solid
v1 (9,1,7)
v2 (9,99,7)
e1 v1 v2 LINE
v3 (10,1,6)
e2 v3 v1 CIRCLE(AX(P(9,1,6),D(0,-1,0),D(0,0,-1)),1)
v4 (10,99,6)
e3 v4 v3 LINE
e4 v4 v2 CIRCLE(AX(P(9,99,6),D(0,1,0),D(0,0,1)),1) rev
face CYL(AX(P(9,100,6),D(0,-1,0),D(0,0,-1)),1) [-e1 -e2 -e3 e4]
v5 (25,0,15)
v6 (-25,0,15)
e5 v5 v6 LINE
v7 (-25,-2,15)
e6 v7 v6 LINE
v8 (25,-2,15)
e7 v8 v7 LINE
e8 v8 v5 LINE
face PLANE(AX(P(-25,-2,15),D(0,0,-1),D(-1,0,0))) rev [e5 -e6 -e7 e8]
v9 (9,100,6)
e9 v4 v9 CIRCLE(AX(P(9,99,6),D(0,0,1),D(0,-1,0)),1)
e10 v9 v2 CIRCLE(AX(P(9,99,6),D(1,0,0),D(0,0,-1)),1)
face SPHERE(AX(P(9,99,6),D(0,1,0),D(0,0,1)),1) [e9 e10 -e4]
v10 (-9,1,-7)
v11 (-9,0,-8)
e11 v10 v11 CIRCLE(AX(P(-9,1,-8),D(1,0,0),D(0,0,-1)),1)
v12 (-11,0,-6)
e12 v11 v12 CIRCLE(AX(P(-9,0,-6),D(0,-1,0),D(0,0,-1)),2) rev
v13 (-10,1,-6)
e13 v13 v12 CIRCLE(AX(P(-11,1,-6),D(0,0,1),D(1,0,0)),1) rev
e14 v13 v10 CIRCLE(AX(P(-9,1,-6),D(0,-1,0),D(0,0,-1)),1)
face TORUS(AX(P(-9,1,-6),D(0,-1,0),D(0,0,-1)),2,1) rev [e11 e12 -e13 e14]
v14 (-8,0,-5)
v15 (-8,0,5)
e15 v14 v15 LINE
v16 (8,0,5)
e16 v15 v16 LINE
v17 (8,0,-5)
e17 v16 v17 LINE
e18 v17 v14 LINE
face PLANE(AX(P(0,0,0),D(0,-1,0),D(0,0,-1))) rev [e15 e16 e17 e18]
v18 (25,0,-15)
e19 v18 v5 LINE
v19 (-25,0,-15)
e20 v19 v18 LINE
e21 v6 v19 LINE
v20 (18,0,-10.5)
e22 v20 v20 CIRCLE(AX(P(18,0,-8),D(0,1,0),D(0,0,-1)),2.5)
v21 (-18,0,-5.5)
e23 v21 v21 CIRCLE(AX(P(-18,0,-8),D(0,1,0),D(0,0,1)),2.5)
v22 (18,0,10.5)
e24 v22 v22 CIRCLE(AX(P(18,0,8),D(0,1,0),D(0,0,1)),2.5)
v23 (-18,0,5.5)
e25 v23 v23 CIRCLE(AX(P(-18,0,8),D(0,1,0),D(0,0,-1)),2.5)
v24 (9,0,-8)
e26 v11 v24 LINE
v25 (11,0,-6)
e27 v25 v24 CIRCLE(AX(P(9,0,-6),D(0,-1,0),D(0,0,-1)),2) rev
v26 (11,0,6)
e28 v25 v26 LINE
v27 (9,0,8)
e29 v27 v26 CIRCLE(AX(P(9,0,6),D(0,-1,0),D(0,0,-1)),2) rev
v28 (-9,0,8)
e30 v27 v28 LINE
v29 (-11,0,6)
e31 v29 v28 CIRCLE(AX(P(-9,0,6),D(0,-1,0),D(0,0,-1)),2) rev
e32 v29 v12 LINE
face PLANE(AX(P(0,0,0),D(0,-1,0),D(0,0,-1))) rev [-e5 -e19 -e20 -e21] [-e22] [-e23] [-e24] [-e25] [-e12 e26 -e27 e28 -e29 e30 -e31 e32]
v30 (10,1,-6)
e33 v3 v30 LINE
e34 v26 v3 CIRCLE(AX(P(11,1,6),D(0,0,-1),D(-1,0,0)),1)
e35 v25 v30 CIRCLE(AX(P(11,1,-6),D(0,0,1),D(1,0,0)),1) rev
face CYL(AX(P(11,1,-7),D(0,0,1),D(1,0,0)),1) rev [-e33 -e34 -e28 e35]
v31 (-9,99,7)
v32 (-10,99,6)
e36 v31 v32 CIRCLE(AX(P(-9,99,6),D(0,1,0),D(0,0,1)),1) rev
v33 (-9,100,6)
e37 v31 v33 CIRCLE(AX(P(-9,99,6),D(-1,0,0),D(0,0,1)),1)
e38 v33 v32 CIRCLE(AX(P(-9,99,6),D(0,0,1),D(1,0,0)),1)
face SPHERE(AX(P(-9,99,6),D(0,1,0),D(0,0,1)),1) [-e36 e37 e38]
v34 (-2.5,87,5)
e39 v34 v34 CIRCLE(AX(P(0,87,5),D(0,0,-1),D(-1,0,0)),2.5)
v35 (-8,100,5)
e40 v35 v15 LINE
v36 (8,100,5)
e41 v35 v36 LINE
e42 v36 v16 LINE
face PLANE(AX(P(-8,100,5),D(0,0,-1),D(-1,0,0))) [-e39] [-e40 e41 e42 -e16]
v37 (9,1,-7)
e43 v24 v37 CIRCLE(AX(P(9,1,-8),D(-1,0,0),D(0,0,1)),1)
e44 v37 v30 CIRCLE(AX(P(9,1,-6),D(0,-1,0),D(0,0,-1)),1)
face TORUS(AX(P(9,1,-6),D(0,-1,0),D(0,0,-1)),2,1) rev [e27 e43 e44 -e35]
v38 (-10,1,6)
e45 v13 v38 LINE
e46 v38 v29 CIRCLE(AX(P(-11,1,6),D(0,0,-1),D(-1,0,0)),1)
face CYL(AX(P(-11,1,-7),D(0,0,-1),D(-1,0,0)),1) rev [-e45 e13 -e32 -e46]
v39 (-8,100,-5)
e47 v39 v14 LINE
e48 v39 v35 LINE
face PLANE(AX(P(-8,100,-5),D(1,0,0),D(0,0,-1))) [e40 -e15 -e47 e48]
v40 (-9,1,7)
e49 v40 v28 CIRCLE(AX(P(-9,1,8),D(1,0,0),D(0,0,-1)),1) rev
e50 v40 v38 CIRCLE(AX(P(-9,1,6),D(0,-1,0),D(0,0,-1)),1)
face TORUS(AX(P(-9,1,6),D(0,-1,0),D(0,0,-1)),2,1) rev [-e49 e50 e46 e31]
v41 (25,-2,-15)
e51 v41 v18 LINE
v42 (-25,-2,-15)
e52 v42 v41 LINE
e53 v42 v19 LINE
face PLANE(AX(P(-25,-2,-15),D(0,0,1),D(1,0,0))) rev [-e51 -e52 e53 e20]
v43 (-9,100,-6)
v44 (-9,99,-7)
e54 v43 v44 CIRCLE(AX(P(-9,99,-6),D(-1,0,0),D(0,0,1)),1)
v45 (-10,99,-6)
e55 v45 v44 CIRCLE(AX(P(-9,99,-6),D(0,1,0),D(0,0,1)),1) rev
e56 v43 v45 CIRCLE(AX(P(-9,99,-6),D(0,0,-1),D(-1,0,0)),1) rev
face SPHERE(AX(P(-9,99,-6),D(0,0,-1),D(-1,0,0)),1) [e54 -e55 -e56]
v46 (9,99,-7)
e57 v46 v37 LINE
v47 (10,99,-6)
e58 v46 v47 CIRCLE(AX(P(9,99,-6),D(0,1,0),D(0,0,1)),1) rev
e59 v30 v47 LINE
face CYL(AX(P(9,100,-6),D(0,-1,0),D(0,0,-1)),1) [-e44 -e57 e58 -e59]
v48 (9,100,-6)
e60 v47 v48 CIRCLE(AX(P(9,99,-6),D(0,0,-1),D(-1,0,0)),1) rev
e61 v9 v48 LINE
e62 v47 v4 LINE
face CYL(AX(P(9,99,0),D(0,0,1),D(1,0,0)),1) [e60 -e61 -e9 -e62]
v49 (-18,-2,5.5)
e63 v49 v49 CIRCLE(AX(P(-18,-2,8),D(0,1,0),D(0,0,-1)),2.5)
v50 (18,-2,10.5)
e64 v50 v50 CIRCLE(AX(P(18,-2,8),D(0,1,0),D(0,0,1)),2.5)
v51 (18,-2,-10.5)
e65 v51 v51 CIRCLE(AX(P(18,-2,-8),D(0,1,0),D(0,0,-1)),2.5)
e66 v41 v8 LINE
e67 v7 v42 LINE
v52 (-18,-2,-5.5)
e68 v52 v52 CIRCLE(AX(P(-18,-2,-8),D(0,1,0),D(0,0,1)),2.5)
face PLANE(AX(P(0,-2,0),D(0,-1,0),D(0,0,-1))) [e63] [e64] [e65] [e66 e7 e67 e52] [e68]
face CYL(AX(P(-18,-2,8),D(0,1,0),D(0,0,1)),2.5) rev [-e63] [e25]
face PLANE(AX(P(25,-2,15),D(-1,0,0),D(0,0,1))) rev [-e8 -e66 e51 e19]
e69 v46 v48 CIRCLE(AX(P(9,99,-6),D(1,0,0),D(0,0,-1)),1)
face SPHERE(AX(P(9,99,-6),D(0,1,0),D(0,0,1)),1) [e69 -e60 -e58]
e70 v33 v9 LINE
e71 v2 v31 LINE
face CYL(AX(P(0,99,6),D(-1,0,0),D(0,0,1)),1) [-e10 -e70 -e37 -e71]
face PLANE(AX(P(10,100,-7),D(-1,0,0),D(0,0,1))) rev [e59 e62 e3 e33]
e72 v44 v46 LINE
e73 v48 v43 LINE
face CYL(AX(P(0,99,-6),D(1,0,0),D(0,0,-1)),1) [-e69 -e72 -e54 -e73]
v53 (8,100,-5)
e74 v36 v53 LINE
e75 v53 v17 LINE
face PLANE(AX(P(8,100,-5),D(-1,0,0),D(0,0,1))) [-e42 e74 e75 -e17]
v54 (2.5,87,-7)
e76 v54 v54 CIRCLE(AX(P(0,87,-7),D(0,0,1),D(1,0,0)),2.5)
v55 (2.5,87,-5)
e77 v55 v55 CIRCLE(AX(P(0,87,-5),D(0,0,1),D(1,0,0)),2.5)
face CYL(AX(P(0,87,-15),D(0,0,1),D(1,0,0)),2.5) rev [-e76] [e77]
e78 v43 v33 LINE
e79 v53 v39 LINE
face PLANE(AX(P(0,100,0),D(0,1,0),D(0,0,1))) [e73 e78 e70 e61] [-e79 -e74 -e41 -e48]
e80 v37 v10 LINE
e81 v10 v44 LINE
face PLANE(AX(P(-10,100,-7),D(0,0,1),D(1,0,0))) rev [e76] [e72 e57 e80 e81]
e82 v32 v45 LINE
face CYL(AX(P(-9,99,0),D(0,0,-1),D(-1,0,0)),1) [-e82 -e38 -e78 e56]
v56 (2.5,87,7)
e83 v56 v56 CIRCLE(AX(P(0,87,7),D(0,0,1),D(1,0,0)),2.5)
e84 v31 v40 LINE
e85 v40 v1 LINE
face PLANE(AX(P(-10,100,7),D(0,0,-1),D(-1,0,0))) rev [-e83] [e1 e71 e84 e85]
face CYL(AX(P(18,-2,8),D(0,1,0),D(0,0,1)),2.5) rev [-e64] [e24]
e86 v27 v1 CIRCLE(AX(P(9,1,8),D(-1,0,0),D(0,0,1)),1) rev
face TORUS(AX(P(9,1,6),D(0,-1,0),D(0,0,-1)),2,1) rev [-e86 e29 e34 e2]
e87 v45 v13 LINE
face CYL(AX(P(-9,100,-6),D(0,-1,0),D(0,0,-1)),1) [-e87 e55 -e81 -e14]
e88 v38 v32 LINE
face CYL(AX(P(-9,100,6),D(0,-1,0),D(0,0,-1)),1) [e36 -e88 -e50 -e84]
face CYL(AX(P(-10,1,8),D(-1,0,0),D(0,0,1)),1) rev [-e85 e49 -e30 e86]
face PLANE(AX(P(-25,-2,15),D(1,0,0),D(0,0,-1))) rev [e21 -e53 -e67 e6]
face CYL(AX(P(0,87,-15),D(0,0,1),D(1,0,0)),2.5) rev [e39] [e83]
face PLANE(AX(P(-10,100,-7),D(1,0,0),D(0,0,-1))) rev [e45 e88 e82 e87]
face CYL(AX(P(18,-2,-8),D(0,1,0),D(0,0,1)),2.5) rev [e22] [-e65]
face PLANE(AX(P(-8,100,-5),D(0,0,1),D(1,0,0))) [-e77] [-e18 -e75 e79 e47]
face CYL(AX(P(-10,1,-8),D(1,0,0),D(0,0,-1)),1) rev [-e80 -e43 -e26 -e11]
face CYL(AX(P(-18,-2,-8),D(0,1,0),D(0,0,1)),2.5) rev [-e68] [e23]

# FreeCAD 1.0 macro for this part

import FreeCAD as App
import Part
import Sketcher
from FreeCAD import Vector
Q = App.Units.Quantity


def edges_at(feature, points):
    """Names of the edges that pass closest to the given points."""
    edges = feature.Shape.Edges
    near = lambda p: min(range(len(edges)), key=lambda i: edges[i].distToShape(Part.Vertex(*p))[0])
    return sorted({f"Edge{near(p) + 1}" for p in points})

doc = App.newDocument("Part")
body = doc.addObject("PartDesign::Body", "Body")

# Sketch on XZ plane
sketch1 = body.newObject("Sketcher::SketchObject", "Sketch")
sketch1.AttachmentSupport = (doc.getObject("XZ_Plane"), [""])
sketch1.MapMode = "FlatFace"
sketch1.addGeometry(Part.LineSegment(Vector(-10, -7, 0), Vector(-10, 7, 0)), False)
sketch1.addGeometry(Part.LineSegment(Vector(-10, 7, 0), Vector(10, 7, 0)), False)
sketch1.addGeometry(Part.LineSegment(Vector(10, 7, 0), Vector(10, -7, 0)), False)
sketch1.addGeometry(Part.LineSegment(Vector(10, -7, 0), Vector(-10, -7, 0)), False)
sketch1.addGeometry(Part.LineSegment(Vector(8, 5, 0), Vector(-8, 5, 0)), False)
sketch1.addGeometry(Part.LineSegment(Vector(-8, 5, 0), Vector(-8, -5, 0)), False)
sketch1.addGeometry(Part.LineSegment(Vector(-8, -5, 0), Vector(8, -5, 0)), False)
sketch1.addGeometry(Part.LineSegment(Vector(8, -5, 0), Vector(8, 5, 0)), False)
sketch1.addConstraint(Sketcher.Constraint("Coincident", 0, 2, 1, 1))
sketch1.addConstraint(Sketcher.Constraint("Coincident", 1, 2, 2, 1))
sketch1.addConstraint(Sketcher.Constraint("Coincident", 2, 2, 3, 1))
sketch1.addConstraint(Sketcher.Constraint("Coincident", 3, 2, 0, 1))
sketch1.addConstraint(Sketcher.Constraint("Coincident", 4, 2, 5, 1))
sketch1.addConstraint(Sketcher.Constraint("Coincident", 5, 2, 6, 1))
sketch1.addConstraint(Sketcher.Constraint("Coincident", 6, 2, 7, 1))
sketch1.addConstraint(Sketcher.Constraint("Coincident", 7, 2, 4, 1))
sketch1.addConstraint(Sketcher.Constraint("Vertical", 0))
sketch1.addConstraint(Sketcher.Constraint("Horizontal", 1))
sketch1.addConstraint(Sketcher.Constraint("Vertical", 2))
sketch1.addConstraint(Sketcher.Constraint("Horizontal", 3))
sketch1.addConstraint(Sketcher.Constraint("Horizontal", 4))
sketch1.addConstraint(Sketcher.Constraint("Vertical", 5))
sketch1.addConstraint(Sketcher.Constraint("Horizontal", 6))
sketch1.addConstraint(Sketcher.Constraint("Vertical", 7))
sketch1.addConstraint(Sketcher.Constraint("Symmetric", 0, 2, 2, 2, -1, 1))
sketch1.addConstraint(Sketcher.Constraint("Symmetric", 4, 2, 6, 2, -1, 1))
sketch1.addConstraint(Sketcher.Constraint("DistanceX", 1, 1, 1, 2, Q("20 mm")))
sketch1.addConstraint(Sketcher.Constraint("DistanceX", 4, 2, 4, 1, Q("16 mm")))
sketch1.addConstraint(Sketcher.Constraint("DistanceY", 0, 1, 0, 2, Q("14 mm")))
sketch1.addConstraint(Sketcher.Constraint("DistanceY", 5, 2, 5, 1, Q("10 mm")))
pad1 = body.newObject("PartDesign::Pad", "Pad")
pad1.Profile = sketch1
pad1.Length = 100
pad1.Reversed = True

# Sketch on XZ plane
sketch2 = body.newObject("Sketcher::SketchObject", "Sketch001")
sketch2.AttachmentSupport = (doc.getObject("XZ_Plane"), [""])
sketch2.MapMode = "FlatFace"
sketch2.addGeometry(Part.LineSegment(Vector(25, -15, 0), Vector(25, 15, 0)), False)
sketch2.addGeometry(Part.LineSegment(Vector(25, 15, 0), Vector(-25, 15, 0)), False)
sketch2.addGeometry(Part.LineSegment(Vector(-25, 15, 0), Vector(-25, -15, 0)), False)
sketch2.addGeometry(Part.LineSegment(Vector(-25, -15, 0), Vector(25, -15, 0)), False)
sketch2.addConstraint(Sketcher.Constraint("Coincident", 0, 2, 1, 1))
sketch2.addConstraint(Sketcher.Constraint("Coincident", 1, 2, 2, 1))
sketch2.addConstraint(Sketcher.Constraint("Coincident", 2, 2, 3, 1))
sketch2.addConstraint(Sketcher.Constraint("Coincident", 3, 2, 0, 1))
sketch2.addConstraint(Sketcher.Constraint("Vertical", 0))
sketch2.addConstraint(Sketcher.Constraint("Horizontal", 1))
sketch2.addConstraint(Sketcher.Constraint("Vertical", 2))
sketch2.addConstraint(Sketcher.Constraint("Horizontal", 3))
sketch2.addConstraint(Sketcher.Constraint("Symmetric", 0, 2, 2, 2, -1, 1))
sketch2.addConstraint(Sketcher.Constraint("DistanceX", 1, 2, 1, 1, Q("50 mm")))
sketch2.addConstraint(Sketcher.Constraint("DistanceY", 0, 1, 0, 2, Q("30 mm")))
pad2 = body.newObject("PartDesign::Pad", "Pad001")
pad2.Profile = sketch2
pad2.Length = 2

# Sketch on XZ plane
sketch3 = body.newObject("Sketcher::SketchObject", "Sketch002")
sketch3.AttachmentSupport = (doc.getObject("XZ_Plane"), [""])
sketch3.MapMode = "FlatFace"
sketch3.addGeometry(Part.Circle(Vector(18, 8, 0), Vector(0, 0, 1), 2.5), False)
sketch3.addGeometry(Part.Circle(Vector(18, -8, 0), Vector(0, 0, 1), 2.5), False)
sketch3.addGeometry(Part.Circle(Vector(-18, 8, 0), Vector(0, 0, 1), 2.5), False)
sketch3.addGeometry(Part.Circle(Vector(-18, -8, 0), Vector(0, 0, 1), 2.5), False)
sketch3.addConstraint(Sketcher.Constraint("Equal", 0, 1))
sketch3.addConstraint(Sketcher.Constraint("Equal", 1, 2))
sketch3.addConstraint(Sketcher.Constraint("Equal", 2, 3))
sketch3.addConstraint(Sketcher.Constraint("Symmetric", 1, 3, 2, 3, -1, 1))
sketch3.addConstraint(Sketcher.Constraint("Symmetric", 0, 3, 3, 3, -1, 1))
sketch3.addConstraint(Sketcher.Constraint("Symmetric", 0, 3, 2, 3, -2))
sketch3.addConstraint(Sketcher.Constraint("Diameter", 0, Q("5 mm")))
sketch3.addConstraint(Sketcher.Constraint("DistanceX", -1, 1, 0, 3, Q("18 mm")))
sketch3.addConstraint(Sketcher.Constraint("DistanceY", -1, 1, 0, 3, Q("8 mm")))
pocket1 = body.newObject("PartDesign::Pocket", "Pocket")
pocket1.Profile = sketch3
pocket1.Length = 2
pocket1.Reversed = True

# Sketch on XY plane
sketch4 = body.newObject("Sketcher::SketchObject", "Sketch003")
sketch4.AttachmentSupport = (doc.getObject("XY_Plane"), [""])
sketch4.MapMode = "FlatFace"
sketch4.AttachmentOffset = App.Placement(Vector(0, 0, 7), App.Rotation())
sketch4.addGeometry(Part.Circle(Vector(0, 87, 0), Vector(0, 0, 1), 2.5), False)
sketch4.addConstraint(Sketcher.Constraint("PointOnObject", 0, 3, -2))
sketch4.addConstraint(Sketcher.Constraint("Diameter", 0, Q("5 mm")))
sketch4.addConstraint(Sketcher.Constraint("DistanceY", -1, 1, 0, 3, Q("87 mm")))
pocket2 = body.newObject("PartDesign::Pocket", "Pocket001")
pocket2.Profile = sketch4
pocket2.Type = "ThroughAll"
doc.recompute()

fillet = body.newObject("PartDesign::Fillet", "Fillet")
fillet.Base = (pocket2, edges_at(pocket2, [
    (-10, 100, 0),
    (0, 100, 7),
    (10, 100, 0),
    (0, 0, 7),
    (-10, 0, 0),
    (0, 0, -7),
    (10, 0, 0),
    (10, 50, 7),
    (-10, 50, 7),
    (-10, 50, -7),
    (10, 50, -7),
    (0, 100, -7),
]))
fillet.Radius = 1

doc.recompute()
